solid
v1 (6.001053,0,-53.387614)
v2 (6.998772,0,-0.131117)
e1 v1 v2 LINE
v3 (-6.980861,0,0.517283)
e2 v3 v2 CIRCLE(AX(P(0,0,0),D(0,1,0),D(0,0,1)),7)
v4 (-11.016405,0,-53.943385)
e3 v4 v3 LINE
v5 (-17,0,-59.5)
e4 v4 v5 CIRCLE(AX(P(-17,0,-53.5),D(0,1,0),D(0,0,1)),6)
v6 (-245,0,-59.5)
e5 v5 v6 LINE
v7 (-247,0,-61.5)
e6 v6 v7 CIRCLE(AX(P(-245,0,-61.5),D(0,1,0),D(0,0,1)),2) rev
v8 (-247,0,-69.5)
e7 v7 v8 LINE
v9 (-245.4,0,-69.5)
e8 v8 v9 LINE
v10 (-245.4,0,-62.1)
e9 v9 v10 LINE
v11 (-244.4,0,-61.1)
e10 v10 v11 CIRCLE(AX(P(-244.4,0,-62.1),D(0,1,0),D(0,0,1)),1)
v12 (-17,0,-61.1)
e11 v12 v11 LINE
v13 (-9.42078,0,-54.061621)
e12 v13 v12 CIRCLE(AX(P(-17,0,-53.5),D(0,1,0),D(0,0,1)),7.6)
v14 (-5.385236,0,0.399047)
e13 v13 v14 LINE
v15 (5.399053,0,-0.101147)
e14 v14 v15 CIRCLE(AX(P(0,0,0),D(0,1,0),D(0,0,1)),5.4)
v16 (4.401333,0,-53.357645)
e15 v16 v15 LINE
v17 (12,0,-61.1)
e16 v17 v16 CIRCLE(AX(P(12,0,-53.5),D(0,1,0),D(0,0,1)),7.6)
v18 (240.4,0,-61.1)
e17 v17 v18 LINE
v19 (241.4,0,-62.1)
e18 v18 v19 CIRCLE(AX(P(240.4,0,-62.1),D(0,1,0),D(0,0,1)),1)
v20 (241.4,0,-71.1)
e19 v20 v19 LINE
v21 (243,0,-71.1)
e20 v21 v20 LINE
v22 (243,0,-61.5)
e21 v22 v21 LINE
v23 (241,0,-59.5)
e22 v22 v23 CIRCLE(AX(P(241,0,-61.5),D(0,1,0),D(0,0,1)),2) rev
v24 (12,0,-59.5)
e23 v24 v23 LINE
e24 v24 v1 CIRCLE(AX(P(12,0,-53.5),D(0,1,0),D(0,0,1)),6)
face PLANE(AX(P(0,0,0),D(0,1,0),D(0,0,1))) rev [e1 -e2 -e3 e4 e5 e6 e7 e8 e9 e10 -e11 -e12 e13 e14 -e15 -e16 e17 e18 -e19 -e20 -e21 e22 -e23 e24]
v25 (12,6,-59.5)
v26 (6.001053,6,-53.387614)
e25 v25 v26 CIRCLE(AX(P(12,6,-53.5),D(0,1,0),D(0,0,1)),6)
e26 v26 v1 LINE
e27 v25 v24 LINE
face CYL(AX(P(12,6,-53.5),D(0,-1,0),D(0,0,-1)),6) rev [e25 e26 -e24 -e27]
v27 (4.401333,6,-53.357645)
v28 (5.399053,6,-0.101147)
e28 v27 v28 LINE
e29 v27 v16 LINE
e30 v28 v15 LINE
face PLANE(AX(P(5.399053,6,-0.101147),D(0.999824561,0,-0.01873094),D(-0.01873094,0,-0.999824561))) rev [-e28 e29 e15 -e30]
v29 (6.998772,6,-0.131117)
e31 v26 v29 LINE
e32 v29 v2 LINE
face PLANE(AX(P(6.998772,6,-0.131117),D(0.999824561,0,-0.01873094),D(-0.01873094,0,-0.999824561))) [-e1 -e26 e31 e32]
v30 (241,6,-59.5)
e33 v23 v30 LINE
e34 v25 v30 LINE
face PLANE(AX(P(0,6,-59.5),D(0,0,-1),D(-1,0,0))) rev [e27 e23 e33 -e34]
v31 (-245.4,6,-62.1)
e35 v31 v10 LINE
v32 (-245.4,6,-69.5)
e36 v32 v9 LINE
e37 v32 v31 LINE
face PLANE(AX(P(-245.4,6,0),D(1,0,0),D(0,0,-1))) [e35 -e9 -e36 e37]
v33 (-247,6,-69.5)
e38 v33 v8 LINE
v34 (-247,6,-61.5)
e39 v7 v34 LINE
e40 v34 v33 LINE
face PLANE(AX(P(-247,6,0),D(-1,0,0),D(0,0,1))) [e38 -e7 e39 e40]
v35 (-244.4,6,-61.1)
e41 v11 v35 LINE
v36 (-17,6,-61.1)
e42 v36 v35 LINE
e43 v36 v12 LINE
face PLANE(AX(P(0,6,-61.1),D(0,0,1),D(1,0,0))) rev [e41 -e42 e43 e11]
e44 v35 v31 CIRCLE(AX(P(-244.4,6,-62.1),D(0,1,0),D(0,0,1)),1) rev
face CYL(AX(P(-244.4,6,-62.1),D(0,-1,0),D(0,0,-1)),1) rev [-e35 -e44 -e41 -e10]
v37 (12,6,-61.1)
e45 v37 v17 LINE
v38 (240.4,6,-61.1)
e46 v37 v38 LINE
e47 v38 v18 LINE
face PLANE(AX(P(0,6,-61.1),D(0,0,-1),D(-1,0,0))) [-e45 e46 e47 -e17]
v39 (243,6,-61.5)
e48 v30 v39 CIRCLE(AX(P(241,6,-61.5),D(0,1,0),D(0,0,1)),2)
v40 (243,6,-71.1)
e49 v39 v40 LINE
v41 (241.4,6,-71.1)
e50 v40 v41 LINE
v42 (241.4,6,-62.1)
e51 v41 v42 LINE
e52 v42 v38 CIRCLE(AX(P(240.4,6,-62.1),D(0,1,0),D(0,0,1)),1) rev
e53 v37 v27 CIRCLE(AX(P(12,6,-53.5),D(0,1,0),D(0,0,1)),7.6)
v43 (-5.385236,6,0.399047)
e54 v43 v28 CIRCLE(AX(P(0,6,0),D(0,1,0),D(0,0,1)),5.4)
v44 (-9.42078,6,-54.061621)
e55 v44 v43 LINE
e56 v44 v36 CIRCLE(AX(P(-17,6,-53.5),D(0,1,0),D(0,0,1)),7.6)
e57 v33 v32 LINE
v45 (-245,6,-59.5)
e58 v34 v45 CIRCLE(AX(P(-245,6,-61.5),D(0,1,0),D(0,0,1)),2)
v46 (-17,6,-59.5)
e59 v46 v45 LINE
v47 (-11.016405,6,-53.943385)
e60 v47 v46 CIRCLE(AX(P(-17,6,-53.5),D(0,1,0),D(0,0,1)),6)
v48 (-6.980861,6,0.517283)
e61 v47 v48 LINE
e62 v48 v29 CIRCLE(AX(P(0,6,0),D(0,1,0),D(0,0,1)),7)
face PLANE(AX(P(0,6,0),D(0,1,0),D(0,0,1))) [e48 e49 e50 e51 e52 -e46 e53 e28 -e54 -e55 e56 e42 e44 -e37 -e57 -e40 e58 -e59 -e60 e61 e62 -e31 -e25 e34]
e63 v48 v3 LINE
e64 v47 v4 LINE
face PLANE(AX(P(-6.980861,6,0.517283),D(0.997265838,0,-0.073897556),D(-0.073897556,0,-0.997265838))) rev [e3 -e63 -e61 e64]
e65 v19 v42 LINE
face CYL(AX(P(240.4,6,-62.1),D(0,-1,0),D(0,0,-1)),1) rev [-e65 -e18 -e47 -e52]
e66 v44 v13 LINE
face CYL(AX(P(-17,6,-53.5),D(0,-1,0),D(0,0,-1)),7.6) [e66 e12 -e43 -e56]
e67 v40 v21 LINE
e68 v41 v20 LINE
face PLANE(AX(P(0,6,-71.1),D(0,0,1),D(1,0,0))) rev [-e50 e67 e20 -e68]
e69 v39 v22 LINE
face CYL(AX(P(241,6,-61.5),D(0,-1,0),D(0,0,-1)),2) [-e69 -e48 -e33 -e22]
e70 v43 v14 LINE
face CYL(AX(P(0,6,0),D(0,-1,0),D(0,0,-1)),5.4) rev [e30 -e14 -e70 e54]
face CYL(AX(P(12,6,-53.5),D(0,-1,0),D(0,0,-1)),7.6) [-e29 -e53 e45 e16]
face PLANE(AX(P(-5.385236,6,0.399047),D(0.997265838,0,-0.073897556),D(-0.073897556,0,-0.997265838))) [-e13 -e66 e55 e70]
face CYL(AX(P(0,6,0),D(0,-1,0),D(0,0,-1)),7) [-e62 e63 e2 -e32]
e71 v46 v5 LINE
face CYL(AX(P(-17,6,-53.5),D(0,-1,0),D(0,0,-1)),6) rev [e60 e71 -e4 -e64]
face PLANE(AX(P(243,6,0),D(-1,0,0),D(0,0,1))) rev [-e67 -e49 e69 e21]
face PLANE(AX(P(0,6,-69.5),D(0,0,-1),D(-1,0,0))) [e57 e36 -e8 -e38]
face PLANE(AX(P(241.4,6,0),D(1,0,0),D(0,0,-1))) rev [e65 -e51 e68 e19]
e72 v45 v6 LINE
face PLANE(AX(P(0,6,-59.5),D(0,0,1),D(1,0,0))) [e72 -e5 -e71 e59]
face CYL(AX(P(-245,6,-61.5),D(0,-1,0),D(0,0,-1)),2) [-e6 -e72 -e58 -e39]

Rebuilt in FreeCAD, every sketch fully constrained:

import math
import FreeCAD as App
import Part
import Sketcher
from FreeCAD import Vector
Q = App.Units.Quantity


def edges_at(feature, points):
    """Names of the edges that pass closest to the given points."""
    edges = feature.Shape.Edges
    near = lambda p: min(range(len(edges)), key=lambda i: edges[i].distToShape(Part.Vertex(*p))[0])
    return sorted({f"Edge{near(p) + 1}" for p in points})

doc = App.newDocument("Part")
body = doc.addObject("PartDesign::Body", "Body")

sketch1 = doc.addObject("Sketcher::SketchObject", "Sketch")
body.addObject(sketch1)
sketch1.AttachmentSupport = (doc.XZ_Plane, [""])
sketch1.MapMode = "FlatFace"
sketch1.addGeometry(Part.LineSegment(Vector(-247, -69.5, 0), Vector(-247, -59.5, 0)), False)
sketch1.addGeometry(Part.LineSegment(Vector(-247, -59.5, 0), Vector(-17, -59.5, 0)), False)
sketch1.addGeometry(Part.ArcOfCircle(Part.Circle(Vector(-17, -53.5, 0), Vector(0, 0, 1), 6), math.radians(-90), math.radians(-4.237881)), False)
sketch1.addGeometry(Part.LineSegment(Vector(-11.016405, -53.943385, 0), Vector(-6.980861, 0.517283, 0)), False)
sketch1.addGeometry(Part.ArcOfCircle(Part.Circle(Vector(0, 0, 0), Vector(0, 0, 1), 7), math.radians(-1.073267), math.radians(175.762119)), False)
sketch1.addGeometry(Part.LineSegment(Vector(6.998772, -0.131117, 0), Vector(6.001053, -53.387614, 0)), False)
sketch1.addGeometry(Part.ArcOfCircle(Part.Circle(Vector(12, -53.5, 0), Vector(0, 0, 1), 6), math.radians(178.926733), math.radians(270)), False)
sketch1.addGeometry(Part.LineSegment(Vector(12, -59.5, 0), Vector(243, -59.5, 0)), False)
sketch1.addGeometry(Part.LineSegment(Vector(243, -59.5, 0), Vector(243, -71.1, 0)), False)
sketch1.addGeometry(Part.LineSegment(Vector(243, -71.1, 0), Vector(241.4, -71.1, 0)), False)
sketch1.addGeometry(Part.LineSegment(Vector(241.4, -71.1, 0), Vector(241.4, -61.1, 0)), False)
sketch1.addGeometry(Part.LineSegment(Vector(241.4, -61.1, 0), Vector(12, -61.1, 0)), False)
sketch1.addGeometry(Part.ArcOfCircle(Part.Circle(Vector(12, -53.5, 0), Vector(0, 0, 1), 7.6), math.radians(178.926733), math.radians(270)), False)
sketch1.addGeometry(Part.LineSegment(Vector(4.401333, -53.357645, 0), Vector(5.399053, -0.101147, 0)), False)
sketch1.addGeometry(Part.ArcOfCircle(Part.Circle(Vector(0, 0, 0), Vector(0, 0, 1), 5.4), math.radians(-1.073267), math.radians(175.762119)), False)
sketch1.addGeometry(Part.LineSegment(Vector(-5.385236, 0.399047, 0), Vector(-9.42078, -54.061621, 0)), False)
sketch1.addGeometry(Part.ArcOfCircle(Part.Circle(Vector(-17, -53.5, 0), Vector(0, 0, 1), 7.6), math.radians(-90), math.radians(-4.237881)), False)
sketch1.addGeometry(Part.LineSegment(Vector(-17, -61.1, 0), Vector(-245.4, -61.1, 0)), False)
sketch1.addGeometry(Part.LineSegment(Vector(-245.4, -61.1, 0), Vector(-245.4, -69.5, 0)), False)
sketch1.addGeometry(Part.LineSegment(Vector(-245.4, -69.5, 0), Vector(-247, -69.5, 0)), False)
sketch1.addConstraint(Sketcher.Constraint("Coincident", 0, 2, 1, 1))
sketch1.addConstraint(Sketcher.Constraint("Tangent", 1, 2, 2, 1))
sketch1.addConstraint(Sketcher.Constraint("Tangent", 2, 2, 3, 1))
sketch1.addConstraint(Sketcher.Constraint("Tangent", 3, 2, 4, 2))
sketch1.addConstraint(Sketcher.Constraint("Tangent", 4, 1, 5, 1))
sketch1.addConstraint(Sketcher.Constraint("Tangent", 5, 2, 6, 1))
sketch1.addConstraint(Sketcher.Constraint("Tangent", 6, 2, 7, 1))
sketch1.addConstraint(Sketcher.Constraint("Coincident", 7, 2, 8, 1))
sketch1.addConstraint(Sketcher.Constraint("Coincident", 8, 2, 9, 1))
sketch1.addConstraint(Sketcher.Constraint("Coincident", 9, 2, 10, 1))
sketch1.addConstraint(Sketcher.Constraint("Coincident", 10, 2, 11, 1))
sketch1.addConstraint(Sketcher.Constraint("Tangent", 11, 2, 12, 2))
sketch1.addConstraint(Sketcher.Constraint("Tangent", 12, 1, 13, 1))
sketch1.addConstraint(Sketcher.Constraint("Tangent", 13, 2, 14, 1))
sketch1.addConstraint(Sketcher.Constraint("Tangent", 14, 2, 15, 1))
sketch1.addConstraint(Sketcher.Constraint("Tangent", 15, 2, 16, 2))
sketch1.addConstraint(Sketcher.Constraint("Tangent", 16, 1, 17, 1))
sketch1.addConstraint(Sketcher.Constraint("Coincident", 17, 2, 18, 1))
sketch1.addConstraint(Sketcher.Constraint("Coincident", 18, 2, 19, 1))
sketch1.addConstraint(Sketcher.Constraint("Coincident", 19, 2, 0, 1))
sketch1.addConstraint(Sketcher.Constraint("Vertical", 0))
sketch1.addConstraint(Sketcher.Constraint("Horizontal", 1))
sketch1.addConstraint(Sketcher.Constraint("Horizontal", 7))
sketch1.addConstraint(Sketcher.Constraint("Vertical", 8))
sketch1.addConstraint(Sketcher.Constraint("Horizontal", 9))
sketch1.addConstraint(Sketcher.Constraint("Vertical", 10))
sketch1.addConstraint(Sketcher.Constraint("Horizontal", 11))
sketch1.addConstraint(Sketcher.Constraint("Horizontal", 17))
sketch1.addConstraint(Sketcher.Constraint("Vertical", 18))
sketch1.addConstraint(Sketcher.Constraint("Horizontal", 19))
sketch1.addConstraint(Sketcher.Constraint("Coincident", 4, 3, -1, 1))
sketch1.addConstraint(Sketcher.Constraint("Coincident", 14, 3, -1, 1))
sketch1.addConstraint(Sketcher.Constraint("Coincident", 12, 3, 6, 3))
sketch1.addConstraint(Sketcher.Constraint("Coincident", 16, 3, 2, 3))
sketch1.addConstraint(Sketcher.Constraint("Equal", 2, 6))
sketch1.addConstraint(Sketcher.Constraint("Equal", 12, 16))
sketch1.addConstraint(Sketcher.Constraint("Parallel", 5, 13))
sketch1.addConstraint(Sketcher.Constraint("Horizontal", 2, 3, 6, 3))
sketch1.addConstraint(Sketcher.Constraint("Equal", 9, 19))
sketch1.addConstraint(Sketcher.Constraint("Equal", 0, 10))
sketch1.addConstraint(Sketcher.Constraint("Radius", 2, Q("6 mm")))
sketch1.addConstraint(Sketcher.Constraint("Radius", 4, Q("7 mm")))
sketch1.addConstraint(Sketcher.Constraint("Radius", 12, Q("7.6 mm")))
sketch1.addConstraint(Sketcher.Constraint("DistanceX", 1, 1, 1, 2, Q("230 mm")))
sketch1.addConstraint(Sketcher.Constraint("DistanceX", 7, 1, 7, 2, Q("231 mm")))
sketch1.addConstraint(Sketcher.Constraint("DistanceY", 0, 1, 0, 2, Q("10 mm")))
sketch1.addConstraint(Sketcher.Constraint("DistanceX", 9, 2, 9, 1, Q("1.6 mm")))
sketch1.addConstraint(Sketcher.Constraint("DistanceX", 2, 3, -1, 1, Q("17 mm")))
sketch1.addConstraint(Sketcher.Constraint("DistanceX", -1, 1, 6, 3, Q("12 mm")))
sketch1.addConstraint(Sketcher.Constraint("DistanceY", 2, 3, -1, 1, Q("53.5 mm")))
pad1 = doc.addObject("PartDesign::Pad", "Pad")
body.addObject(pad1)
pad1.Profile = sketch1
pad1.Length = 6
pad1.Reversed = True
doc.recompute()

fillet = doc.addObject("PartDesign::Fillet", "Fillet")
body.addObject(fillet)
fillet.Base = (pad1, edges_at(pad1, [(-245.4, 3, -61.1), (241.4, 3, -61.1)]))
fillet.Radius = 1
doc.recompute()

fillet2 = doc.addObject("PartDesign::Fillet", "Fillet001")
body.addObject(fillet2)
fillet2.Base = (fillet, edges_at(fillet, [(243, 3, -59.5), (-247, 3, -59.5)]))
fillet2.Radius = 2

doc.recompute()
